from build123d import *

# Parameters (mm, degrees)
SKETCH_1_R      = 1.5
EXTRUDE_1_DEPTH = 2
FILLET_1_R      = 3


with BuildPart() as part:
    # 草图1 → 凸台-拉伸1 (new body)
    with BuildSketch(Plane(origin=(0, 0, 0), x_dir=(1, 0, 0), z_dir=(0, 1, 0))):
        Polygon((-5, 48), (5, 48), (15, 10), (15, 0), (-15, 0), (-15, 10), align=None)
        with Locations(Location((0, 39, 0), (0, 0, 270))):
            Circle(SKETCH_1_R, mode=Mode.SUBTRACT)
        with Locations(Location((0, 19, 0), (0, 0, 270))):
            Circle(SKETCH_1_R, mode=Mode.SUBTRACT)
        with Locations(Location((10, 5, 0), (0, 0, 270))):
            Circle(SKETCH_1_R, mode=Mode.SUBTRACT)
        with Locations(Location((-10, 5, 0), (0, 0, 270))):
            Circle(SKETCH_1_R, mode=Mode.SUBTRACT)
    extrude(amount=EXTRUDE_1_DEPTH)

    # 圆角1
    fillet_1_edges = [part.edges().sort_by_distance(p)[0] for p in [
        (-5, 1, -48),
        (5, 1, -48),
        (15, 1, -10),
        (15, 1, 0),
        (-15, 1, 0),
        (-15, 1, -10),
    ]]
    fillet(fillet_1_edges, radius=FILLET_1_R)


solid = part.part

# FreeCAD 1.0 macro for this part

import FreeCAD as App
import Part
import Sketcher


def edges_at(feature, points):
    """Names of the edges that pass closest to the given points."""
    edges = feature.Shape.Edges
    near = lambda p: min(range(len(edges)), key=lambda i: edges[i].distToShape(Part.Vertex(*p))[0])
    return sorted({f"Edge{near(p) + 1}" for p in points})

doc = App.newDocument("Part")
body = doc.addObject("PartDesign::Body", "Body")

# Sketch on XZ plane
sketch1 = body.newObject("Sketcher::SketchObject", "Sketch")
sketch1.AttachmentSupport = (doc.getObject("XZ_Plane"), [""])
sketch1.MapMode = "FlatFace"
sketch1.addGeometry([
    Part.LineSegment(App.Vector(5, -48, 0), App.Vector(-5, -48, 0)),  # 0
    Part.LineSegment(App.Vector(-5, -48, 0), App.Vector(-15, -10, 0)),  # 1
    Part.LineSegment(App.Vector(-15, -10, 0), App.Vector(-15, 0, 0)),  # 2
    Part.LineSegment(App.Vector(-15, 0, 0), App.Vector(15, 0, 0)),  # 3
    Part.LineSegment(App.Vector(15, 0, 0), App.Vector(15, -10, 0)),  # 4
    Part.LineSegment(App.Vector(15, -10, 0), App.Vector(5, -48, 0)),  # 5
    Part.Circle(App.Vector(10, -5, 0), App.Vector(0, 0, 1), 1.5),  # 6
    Part.Circle(App.Vector(-10, -5, 0), App.Vector(0, 0, 1), 1.5),  # 7
    Part.Circle(App.Vector(0, -19, 0), App.Vector(0, 0, 1), 1.5),  # 8
    Part.Circle(App.Vector(0, -39, 0), App.Vector(0, 0, 1), 1.5),  # 9
], False)
sketch1.addConstraint([
    Sketcher.Constraint("Coincident", 0, 2, 1, 1),
    Sketcher.Constraint("Coincident", 1, 2, 2, 1),
    Sketcher.Constraint("Coincident", 2, 2, 3, 1),
    Sketcher.Constraint("Coincident", 3, 2, 4, 1),
    Sketcher.Constraint("Coincident", 4, 2, 5, 1),
    Sketcher.Constraint("Coincident", 5, 2, 0, 1),
    Sketcher.Constraint("Horizontal", 0),
    Sketcher.Constraint("Vertical", 2),
    Sketcher.Constraint("Horizontal", 3),
    Sketcher.Constraint("Vertical", 4),
    Sketcher.Constraint("Equal", 6, 7),
    Sketcher.Constraint("Equal", 7, 8),
    Sketcher.Constraint("Equal", 8, 9),
    Sketcher.Constraint("Symmetric", 2, 2, 3, 2, -1, 1),
    Sketcher.Constraint("Symmetric", 6, 3, 7, 3, -2),
    Sketcher.Constraint("PointOnObject", 8, 3, -2),
    Sketcher.Constraint("PointOnObject", 9, 3, -2),
    Sketcher.Constraint("Horizontal", 1, 2, 4, 2),
    Sketcher.Constraint("Equal", 0, 2),
    Sketcher.Constraint("Equal", 1, 5),
    Sketcher.Constraint("Diameter", 6, 3.0),
    Sketcher.Constraint("DistanceX", 0, 2, 0, 1, 10.0),
    Sketcher.Constraint("DistanceX", 3, 1, 3, 2, 30.0),
    Sketcher.Constraint("DistanceX", -1, 1, 6, 3, 10.0),
    Sketcher.Constraint("DistanceY", 6, 3, -1, 1, 5.0),
    Sketcher.Constraint("DistanceY", 8, 3, -1, 1, 19.0),
    Sketcher.Constraint("DistanceY", 9, 3, -1, 1, 39.0),
    Sketcher.Constraint("DistanceY", 0, 2, -1, 1, 48.0),
])
pad1 = body.newObject("PartDesign::Pad", "Pad")
pad1.Profile = sketch1
pad1.Length = 2
pad1.Reversed = True
doc.recompute()

fillet = body.newObject("PartDesign::Fillet", "Fillet")
fillet.Base = (pad1, edges_at(pad1, [
    (-5, 1, -48),
    (5, 1, -48),
    (15, 1, -10),
    (15, 1, 0),
    (-15, 1, 0),
    (-15, 1, -10),
]))
fillet.Radius = 3

doc.recompute()
